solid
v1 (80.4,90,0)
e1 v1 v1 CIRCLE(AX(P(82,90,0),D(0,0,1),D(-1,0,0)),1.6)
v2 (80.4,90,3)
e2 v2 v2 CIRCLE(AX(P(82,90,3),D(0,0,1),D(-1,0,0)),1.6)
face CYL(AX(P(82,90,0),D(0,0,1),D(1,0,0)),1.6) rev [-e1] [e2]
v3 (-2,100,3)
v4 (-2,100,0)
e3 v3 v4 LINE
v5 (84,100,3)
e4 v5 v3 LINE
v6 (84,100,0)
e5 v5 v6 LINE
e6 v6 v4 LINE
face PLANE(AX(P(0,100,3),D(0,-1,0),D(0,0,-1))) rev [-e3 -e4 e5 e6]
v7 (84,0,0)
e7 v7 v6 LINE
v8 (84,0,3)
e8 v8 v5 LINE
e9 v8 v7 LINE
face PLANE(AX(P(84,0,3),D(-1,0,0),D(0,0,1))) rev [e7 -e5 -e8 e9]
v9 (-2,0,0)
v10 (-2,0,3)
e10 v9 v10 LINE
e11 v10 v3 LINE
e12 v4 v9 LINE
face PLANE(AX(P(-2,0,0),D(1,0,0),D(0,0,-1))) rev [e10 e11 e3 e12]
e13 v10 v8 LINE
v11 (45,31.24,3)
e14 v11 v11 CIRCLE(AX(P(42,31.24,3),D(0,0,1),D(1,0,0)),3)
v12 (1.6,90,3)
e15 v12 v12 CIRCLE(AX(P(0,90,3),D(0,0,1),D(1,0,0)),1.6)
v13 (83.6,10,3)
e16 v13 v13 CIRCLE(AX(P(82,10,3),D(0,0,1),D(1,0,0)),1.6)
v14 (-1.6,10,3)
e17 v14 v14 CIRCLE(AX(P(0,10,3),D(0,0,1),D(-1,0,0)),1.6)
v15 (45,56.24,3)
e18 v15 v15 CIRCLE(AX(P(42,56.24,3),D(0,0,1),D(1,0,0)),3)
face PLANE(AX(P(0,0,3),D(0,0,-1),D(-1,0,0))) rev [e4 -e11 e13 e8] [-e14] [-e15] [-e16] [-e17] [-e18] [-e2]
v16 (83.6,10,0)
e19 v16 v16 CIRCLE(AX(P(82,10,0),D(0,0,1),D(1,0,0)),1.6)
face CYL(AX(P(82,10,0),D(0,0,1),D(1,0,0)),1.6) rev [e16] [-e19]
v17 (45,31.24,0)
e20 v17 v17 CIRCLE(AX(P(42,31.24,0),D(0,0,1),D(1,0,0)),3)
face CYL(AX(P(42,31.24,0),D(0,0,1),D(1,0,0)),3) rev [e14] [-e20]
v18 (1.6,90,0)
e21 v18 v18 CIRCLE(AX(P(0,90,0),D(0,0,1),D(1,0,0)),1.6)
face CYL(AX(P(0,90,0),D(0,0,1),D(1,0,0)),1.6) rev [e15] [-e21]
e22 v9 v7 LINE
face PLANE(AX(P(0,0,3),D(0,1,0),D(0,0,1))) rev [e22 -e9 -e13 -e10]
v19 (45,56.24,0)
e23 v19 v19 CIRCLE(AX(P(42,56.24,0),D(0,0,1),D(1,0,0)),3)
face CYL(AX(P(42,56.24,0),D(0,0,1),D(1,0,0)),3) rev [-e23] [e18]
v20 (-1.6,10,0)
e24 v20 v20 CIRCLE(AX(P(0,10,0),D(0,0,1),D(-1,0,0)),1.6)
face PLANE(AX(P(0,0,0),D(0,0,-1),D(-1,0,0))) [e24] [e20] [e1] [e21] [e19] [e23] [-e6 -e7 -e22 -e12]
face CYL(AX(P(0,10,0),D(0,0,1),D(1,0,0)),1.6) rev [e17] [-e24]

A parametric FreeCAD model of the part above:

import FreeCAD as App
import Part
import Sketcher

doc = App.newDocument("Part")
body = doc.addObject("PartDesign::Body", "Body")

# Sketch on XY plane
sketch1 = doc.addObject("Sketcher::SketchObject", "Sketch")
body.addObject(sketch1)
sketch1.AttachmentSupport = (doc.XY_Plane, [""])
sketch1.MapMode = "FlatFace"
sketch1.addGeometry([
    Part.LineSegment(App.Vector(0, 100, 0), App.Vector(0, 0, 0)),
    Part.LineSegment(App.Vector(0, 0, 0), App.Vector(84, 0, 0)),
    Part.LineSegment(App.Vector(84, 0, 0), App.Vector(84, 100, 0)),
    Part.LineSegment(App.Vector(84, 100, 0), App.Vector(0, 100, 0)),
], False)
sketch1.addConstraint([
    Sketcher.Constraint("Coincident", 0, 2, 1, 1),
    Sketcher.Constraint("Coincident", 1, 2, 2, 1),
    Sketcher.Constraint("Coincident", 2, 2, 3, 1),
    Sketcher.Constraint("Coincident", 3, 2, 0, 1),
    Sketcher.Constraint("Vertical", 0),
    Sketcher.Constraint("Horizontal", 1),
    Sketcher.Constraint("Vertical", 2),
    Sketcher.Constraint("Horizontal", 3),
    Sketcher.Constraint("Coincident", 0, 2, -1, 1),
    Sketcher.Constraint("DistanceX", 1, 1, 1, 2, 84.0),
    Sketcher.Constraint("DistanceY", 0, 2, 0, 1, 100.0),
])
pad1 = doc.addObject("PartDesign::Pad", "Pad")
body.addObject(pad1)
pad1.Profile = sketch1
pad1.Length = 3

# Sketch on XY plane
sketch2 = doc.addObject("Sketcher::SketchObject", "Sketch001")
body.addObject(sketch2)
sketch2.AttachmentSupport = (doc.XY_Plane, [""])
sketch2.MapMode = "FlatFace"
sketch2.AttachmentOffset = App.Placement(App.Vector(0, 0, 3), App.Rotation())
sketch2.addGeometry([
    Part.Circle(App.Vector(42, 31.2, 0), App.Vector(0, 0, 1), 3),
    Part.Circle(App.Vector(42, 56.2, 0), App.Vector(0, 0, 1), 3),
], False)
sketch2.addConstraint([
    Sketcher.Constraint("Equal", 0, 1),
    Sketcher.Constraint("Vertical", 0, 3, 1, 3),
    Sketcher.Constraint("Diameter", 0, 6.0),
    Sketcher.Constraint("DistanceX", -1, 1, 0, 3, 42.0),
    Sketcher.Constraint("DistanceY", 0, 3, 1, 3, 25.0),
    Sketcher.Constraint("DistanceY", -1, 1, 0, 3, 31.24),
])
pocket1 = doc.addObject("PartDesign::Pocket", "Pocket")
body.addObject(pocket1)
pocket1.Profile = sketch2
pocket1.Length = 3

# Sketch on YZ plane
sketch3 = doc.addObject("Sketcher::SketchObject", "Sketch002")
body.addObject(sketch3)
sketch3.AttachmentSupport = (doc.YZ_Plane, [""])
sketch3.MapMode = "FlatFace"
sketch3.addGeometry([
    Part.LineSegment(App.Vector(100, 0, 0), App.Vector(0, 0, 0)),
    Part.LineSegment(App.Vector(0, 0, 0), App.Vector(0, 3, 0)),
    Part.LineSegment(App.Vector(0, 3, 0), App.Vector(100, 3, 0)),
    Part.LineSegment(App.Vector(100, 3, 0), App.Vector(100, 0, 0)),
], False)
sketch3.addConstraint([
    Sketcher.Constraint("Coincident", 0, 2, 1, 1),
    Sketcher.Constraint("Coincident", 1, 2, 2, 1),
    Sketcher.Constraint("Coincident", 2, 2, 3, 1),
    Sketcher.Constraint("Coincident", 3, 2, 0, 1),
    Sketcher.Constraint("Horizontal", 0),
    Sketcher.Constraint("Vertical", 1),
    Sketcher.Constraint("Horizontal", 2),
    Sketcher.Constraint("Vertical", 3),
    Sketcher.Constraint("Coincident", 0, 2, -1, 1),
    Sketcher.Constraint("DistanceX", 0, 2, 0, 1, 100.0),
    Sketcher.Constraint("DistanceY", 1, 1, 1, 2, 3.0),
])
pad2 = doc.addObject("PartDesign::Pad", "Pad001")
body.addObject(pad2)
pad2.Profile = sketch3
pad2.Length = 2
pad2.Reversed = True

# Sketch on XY plane
sketch4 = doc.addObject("Sketcher::SketchObject", "Sketch003")
body.addObject(sketch4)
sketch4.AttachmentSupport = (doc.XY_Plane, [""])
sketch4.MapMode = "FlatFace"
sketch4.AttachmentOffset = App.Placement(App.Vector(0, 0, 3), App.Rotation())
sketch4.addGeometry([
    Part.Circle(App.Vector(82, 10, 0), App.Vector(0, 0, 1), 1.6),
    Part.Circle(App.Vector(82, 90, 0), App.Vector(0, 0, 1), 1.6),
    Part.Circle(App.Vector(0, 90, 0), App.Vector(0, 0, 1), 1.6),
    Part.Circle(App.Vector(0, 10, 0), App.Vector(0, 0, 1), 1.6),
], False)
sketch4.addConstraint([
    Sketcher.Constraint("Equal", 0, 1),
    Sketcher.Constraint("Equal", 1, 2),
    Sketcher.Constraint("Equal", 2, 3),
    Sketcher.Constraint("PointOnObject", 2, 3, -2),
    Sketcher.Constraint("PointOnObject", 3, 3, -2),
    Sketcher.Constraint("Horizontal", 1, 3, 2, 3),
    Sketcher.Constraint("Horizontal", 0, 3, 3, 3),
    Sketcher.Constraint("Vertical", 0, 3, 1, 3),
    Sketcher.Constraint("Diameter", 0, 3.2),
    Sketcher.Constraint("DistanceX", -1, 1, 0, 3, 82.0),
    Sketcher.Constraint("DistanceY", -1, 1, 0, 3, 10.0),
    Sketcher.Constraint("DistanceY", -1, 1, 1, 3, 90.0),
])
pocket2 = doc.addObject("PartDesign::Pocket", "Pocket001")
body.addObject(pocket2)
pocket2.Profile = sketch4
pocket2.Type = "ThroughAll"

doc.recompute()
